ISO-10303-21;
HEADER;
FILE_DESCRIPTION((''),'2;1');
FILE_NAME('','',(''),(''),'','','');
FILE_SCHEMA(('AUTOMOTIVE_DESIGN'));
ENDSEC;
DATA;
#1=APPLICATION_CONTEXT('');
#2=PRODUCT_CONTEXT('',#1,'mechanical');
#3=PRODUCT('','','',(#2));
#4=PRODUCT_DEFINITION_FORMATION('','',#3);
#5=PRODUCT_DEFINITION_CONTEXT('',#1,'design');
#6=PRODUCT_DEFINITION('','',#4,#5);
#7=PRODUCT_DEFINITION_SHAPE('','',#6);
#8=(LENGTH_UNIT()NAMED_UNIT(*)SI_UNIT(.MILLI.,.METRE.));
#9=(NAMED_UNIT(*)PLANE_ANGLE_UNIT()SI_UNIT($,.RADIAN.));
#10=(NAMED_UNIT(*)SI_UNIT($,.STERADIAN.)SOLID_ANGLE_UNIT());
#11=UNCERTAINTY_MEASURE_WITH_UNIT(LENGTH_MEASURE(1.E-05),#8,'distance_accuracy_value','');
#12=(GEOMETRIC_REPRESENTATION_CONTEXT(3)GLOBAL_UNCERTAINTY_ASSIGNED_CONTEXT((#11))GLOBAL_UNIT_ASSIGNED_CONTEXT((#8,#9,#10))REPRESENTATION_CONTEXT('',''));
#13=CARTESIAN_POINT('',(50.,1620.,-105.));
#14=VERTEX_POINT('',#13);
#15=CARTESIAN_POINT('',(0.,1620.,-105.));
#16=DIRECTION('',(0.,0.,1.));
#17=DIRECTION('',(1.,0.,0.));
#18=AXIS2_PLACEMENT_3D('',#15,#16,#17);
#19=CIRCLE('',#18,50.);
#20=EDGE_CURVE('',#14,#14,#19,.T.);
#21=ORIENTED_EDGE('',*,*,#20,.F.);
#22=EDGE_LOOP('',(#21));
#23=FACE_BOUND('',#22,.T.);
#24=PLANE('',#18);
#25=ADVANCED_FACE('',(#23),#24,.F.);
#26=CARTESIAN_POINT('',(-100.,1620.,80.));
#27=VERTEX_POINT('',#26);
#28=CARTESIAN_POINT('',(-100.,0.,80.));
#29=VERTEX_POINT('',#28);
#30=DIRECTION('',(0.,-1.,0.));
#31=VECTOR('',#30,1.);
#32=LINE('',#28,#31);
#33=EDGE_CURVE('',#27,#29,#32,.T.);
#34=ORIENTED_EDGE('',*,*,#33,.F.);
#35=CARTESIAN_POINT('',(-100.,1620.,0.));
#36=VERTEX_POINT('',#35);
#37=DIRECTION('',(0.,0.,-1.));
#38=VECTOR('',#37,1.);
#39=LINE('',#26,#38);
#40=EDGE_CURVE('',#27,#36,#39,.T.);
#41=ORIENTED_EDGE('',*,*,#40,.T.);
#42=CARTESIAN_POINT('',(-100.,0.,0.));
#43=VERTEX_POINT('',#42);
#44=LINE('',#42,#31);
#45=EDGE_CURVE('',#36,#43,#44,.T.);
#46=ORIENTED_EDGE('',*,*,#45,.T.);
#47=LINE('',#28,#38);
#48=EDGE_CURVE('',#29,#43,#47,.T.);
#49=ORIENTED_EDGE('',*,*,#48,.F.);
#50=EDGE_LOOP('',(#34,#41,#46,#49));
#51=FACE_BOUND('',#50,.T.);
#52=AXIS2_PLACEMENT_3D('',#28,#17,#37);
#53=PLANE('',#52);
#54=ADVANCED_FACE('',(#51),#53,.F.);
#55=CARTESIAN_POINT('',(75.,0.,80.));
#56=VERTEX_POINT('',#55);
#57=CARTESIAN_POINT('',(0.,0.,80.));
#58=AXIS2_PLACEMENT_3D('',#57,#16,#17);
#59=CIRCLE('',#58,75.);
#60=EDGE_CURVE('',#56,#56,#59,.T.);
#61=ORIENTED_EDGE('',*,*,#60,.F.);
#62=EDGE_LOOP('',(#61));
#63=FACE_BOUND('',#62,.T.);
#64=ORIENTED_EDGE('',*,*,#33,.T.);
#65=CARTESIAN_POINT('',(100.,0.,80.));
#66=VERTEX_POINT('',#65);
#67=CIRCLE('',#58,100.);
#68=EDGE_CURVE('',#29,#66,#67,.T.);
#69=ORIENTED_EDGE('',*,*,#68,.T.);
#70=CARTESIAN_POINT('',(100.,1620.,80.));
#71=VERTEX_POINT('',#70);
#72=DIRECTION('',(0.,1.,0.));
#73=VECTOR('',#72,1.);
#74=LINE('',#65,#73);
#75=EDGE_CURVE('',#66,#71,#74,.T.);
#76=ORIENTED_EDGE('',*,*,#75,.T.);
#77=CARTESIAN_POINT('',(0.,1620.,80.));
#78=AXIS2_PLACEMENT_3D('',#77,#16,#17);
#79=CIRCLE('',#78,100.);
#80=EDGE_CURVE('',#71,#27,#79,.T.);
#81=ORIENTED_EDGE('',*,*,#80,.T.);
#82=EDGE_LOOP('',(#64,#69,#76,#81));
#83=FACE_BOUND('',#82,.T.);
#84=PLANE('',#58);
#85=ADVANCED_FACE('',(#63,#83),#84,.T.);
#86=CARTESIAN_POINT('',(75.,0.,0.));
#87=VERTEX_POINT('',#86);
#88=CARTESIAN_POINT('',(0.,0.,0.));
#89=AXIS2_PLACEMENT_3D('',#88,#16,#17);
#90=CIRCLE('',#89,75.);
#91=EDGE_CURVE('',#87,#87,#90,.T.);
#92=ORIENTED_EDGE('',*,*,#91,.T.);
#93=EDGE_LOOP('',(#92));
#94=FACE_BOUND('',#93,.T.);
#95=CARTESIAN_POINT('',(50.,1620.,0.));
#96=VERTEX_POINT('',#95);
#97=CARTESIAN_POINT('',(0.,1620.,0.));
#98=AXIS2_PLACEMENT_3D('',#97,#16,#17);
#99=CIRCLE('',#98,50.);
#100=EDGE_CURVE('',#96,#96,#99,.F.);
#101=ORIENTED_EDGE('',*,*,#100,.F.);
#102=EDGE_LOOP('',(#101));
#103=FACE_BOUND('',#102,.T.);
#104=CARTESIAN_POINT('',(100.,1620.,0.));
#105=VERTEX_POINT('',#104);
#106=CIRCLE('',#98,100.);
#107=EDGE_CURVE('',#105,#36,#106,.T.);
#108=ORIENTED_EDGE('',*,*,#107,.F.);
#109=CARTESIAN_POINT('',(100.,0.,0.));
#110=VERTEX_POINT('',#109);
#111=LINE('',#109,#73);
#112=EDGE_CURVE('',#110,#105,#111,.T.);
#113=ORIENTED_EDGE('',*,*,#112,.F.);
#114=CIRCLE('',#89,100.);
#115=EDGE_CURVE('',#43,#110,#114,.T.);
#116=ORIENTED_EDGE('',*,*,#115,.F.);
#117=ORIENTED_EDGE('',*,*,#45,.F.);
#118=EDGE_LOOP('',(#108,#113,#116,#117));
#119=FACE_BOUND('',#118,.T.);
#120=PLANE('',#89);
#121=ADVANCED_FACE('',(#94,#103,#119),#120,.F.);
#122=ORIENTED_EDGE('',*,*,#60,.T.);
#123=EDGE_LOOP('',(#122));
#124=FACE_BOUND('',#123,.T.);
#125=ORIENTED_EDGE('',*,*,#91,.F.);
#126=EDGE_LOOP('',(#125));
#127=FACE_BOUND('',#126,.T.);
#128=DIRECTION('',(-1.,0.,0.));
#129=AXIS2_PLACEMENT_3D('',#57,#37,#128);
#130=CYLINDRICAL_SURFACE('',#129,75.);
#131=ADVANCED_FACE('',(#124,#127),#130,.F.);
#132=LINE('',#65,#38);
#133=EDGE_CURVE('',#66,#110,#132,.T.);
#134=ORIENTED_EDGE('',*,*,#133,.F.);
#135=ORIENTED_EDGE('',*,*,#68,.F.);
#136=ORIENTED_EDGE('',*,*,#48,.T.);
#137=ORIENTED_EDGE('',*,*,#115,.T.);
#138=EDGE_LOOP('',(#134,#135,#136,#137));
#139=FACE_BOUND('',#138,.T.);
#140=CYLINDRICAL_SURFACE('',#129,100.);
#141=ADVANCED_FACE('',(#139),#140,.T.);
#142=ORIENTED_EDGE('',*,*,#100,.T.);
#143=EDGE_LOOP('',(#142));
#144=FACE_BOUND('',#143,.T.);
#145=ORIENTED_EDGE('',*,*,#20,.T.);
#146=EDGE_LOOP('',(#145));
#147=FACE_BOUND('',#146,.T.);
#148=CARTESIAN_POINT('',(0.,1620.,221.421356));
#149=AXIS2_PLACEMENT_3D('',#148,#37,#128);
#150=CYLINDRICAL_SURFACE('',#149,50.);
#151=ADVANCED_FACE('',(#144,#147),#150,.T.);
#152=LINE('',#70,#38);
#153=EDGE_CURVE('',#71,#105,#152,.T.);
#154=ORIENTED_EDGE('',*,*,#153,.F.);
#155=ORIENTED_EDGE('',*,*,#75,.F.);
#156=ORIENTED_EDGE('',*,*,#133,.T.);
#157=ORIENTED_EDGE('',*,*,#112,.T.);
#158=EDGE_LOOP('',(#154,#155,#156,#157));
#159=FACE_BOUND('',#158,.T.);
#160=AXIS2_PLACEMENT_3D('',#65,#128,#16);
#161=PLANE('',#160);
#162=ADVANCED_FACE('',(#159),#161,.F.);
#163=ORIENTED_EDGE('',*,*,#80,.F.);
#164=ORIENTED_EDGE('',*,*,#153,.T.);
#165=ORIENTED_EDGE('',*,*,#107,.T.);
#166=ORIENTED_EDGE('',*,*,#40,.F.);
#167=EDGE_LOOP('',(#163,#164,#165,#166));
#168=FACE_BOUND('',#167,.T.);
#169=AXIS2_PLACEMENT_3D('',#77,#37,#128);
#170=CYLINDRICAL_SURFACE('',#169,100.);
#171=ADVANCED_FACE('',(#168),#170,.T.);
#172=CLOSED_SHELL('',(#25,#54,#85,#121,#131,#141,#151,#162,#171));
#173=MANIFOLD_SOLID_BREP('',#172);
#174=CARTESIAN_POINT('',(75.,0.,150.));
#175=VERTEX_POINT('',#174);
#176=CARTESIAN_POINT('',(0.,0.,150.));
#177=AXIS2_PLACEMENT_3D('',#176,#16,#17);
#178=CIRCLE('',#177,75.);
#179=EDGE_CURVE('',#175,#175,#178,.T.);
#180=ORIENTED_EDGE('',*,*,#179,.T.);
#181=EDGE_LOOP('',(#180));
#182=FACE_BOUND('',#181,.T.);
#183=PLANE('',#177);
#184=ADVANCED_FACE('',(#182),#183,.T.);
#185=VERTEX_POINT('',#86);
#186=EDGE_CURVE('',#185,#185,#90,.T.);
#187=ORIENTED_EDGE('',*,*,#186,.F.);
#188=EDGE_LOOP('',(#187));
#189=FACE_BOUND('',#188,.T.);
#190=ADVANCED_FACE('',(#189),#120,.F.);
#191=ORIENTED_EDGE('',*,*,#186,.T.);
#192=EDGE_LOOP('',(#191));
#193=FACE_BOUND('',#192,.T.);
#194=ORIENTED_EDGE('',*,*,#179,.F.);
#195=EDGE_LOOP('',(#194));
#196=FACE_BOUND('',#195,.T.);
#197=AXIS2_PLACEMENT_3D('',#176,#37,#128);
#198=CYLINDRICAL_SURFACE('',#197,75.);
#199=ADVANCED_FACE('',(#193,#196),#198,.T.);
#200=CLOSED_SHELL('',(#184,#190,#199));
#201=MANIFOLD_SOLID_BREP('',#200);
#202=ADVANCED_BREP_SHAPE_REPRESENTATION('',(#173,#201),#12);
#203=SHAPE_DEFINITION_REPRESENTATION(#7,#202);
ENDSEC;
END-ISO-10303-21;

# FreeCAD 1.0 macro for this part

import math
import FreeCAD as App
import Part
import Sketcher
from FreeCAD import Vector

doc = App.newDocument("Part")
body = doc.addObject("PartDesign::Body", "Body")

# Sketch on XY plane
sketch1 = body.newObject("Sketcher::SketchObject", "Sketch")
sketch1.AttachmentSupport = (doc.getObject("XY_Plane"), [""])
sketch1.MapMode = "FlatFace"
sketch1.addGeometry([
    Part.LineSegment(Vector(-100, 1620, 0), Vector(-100, 0, 0)),  # 0
    Part.ArcOfCircle(Part.Circle(Vector(0, 0, 0), Vector(0, 0, 1), 100), math.radians(180), math.radians(360)),  # 1
    Part.LineSegment(Vector(100, 0, 0), Vector(100, 1620, 0)),  # 2
    Part.ArcOfCircle(Part.Circle(Vector(0, 1620, 0), Vector(0, 0, 1), 100), math.radians(0), math.radians(180)),  # 3
    Part.Circle(Vector(0, 0, 0), Vector(0, 0, 1), 75),  # 4
    Part.Circle(Vector(0, 1620, 0), Vector(0, 0, 1), 50),  # 5
], False)
sketch1.addConstraint([
    Sketcher.Constraint("Tangent", 0, 2, 1, 1),
    Sketcher.Constraint("Tangent", 1, 2, 2, 1),
    Sketcher.Constraint("Tangent", 2, 2, 3, 1),
    Sketcher.Constraint("Tangent", 3, 2, 0, 1),
    Sketcher.Constraint("Vertical", 0),
    Sketcher.Constraint("Vertical", 2),
    Sketcher.Constraint("Coincident", 1, 3, -1, 1),
    Sketcher.Constraint("Coincident", 4, 3, -1, 1),
    Sketcher.Constraint("Coincident", 5, 3, 3, 3),
    Sketcher.Constraint("Diameter", 4, 150.0),
    Sketcher.Constraint("Diameter", 5, 100.0),
    Sketcher.Constraint("Radius", 1, 100.0),
    Sketcher.Constraint("DistanceY", 0, 2, 0, 1, 1620.0),
])
pad1 = body.newObject("PartDesign::Pad", "Pad")
pad1.Profile = sketch1
pad1.Length = 80

# Sketch on XY plane
sketch2 = body.newObject("Sketcher::SketchObject", "Sketch001")
sketch2.AttachmentSupport = (doc.getObject("XY_Plane"), [""])
sketch2.MapMode = "FlatFace"
sketch2.AttachmentOffset = App.Placement(Vector(0, 0, -105), App.Rotation())
sketch2.addGeometry(Part.Circle(Vector(0, 1620, 0), Vector(0, 0, 1), 50), False)
sketch2.addConstraint([
    Sketcher.Constraint("PointOnObject", 0, 3, -2),
    Sketcher.Constraint("Diameter", 0, 100.0),
    Sketcher.Constraint("DistanceY", -1, 1, 0, 3, 1620.0),
])
pad2 = body.newObject("PartDesign::Pad", "Pad001")
pad2.Profile = sketch2
pad2.Length = 185
body2 = doc.addObject("PartDesign::Body", "Body001")

# Sketch on XY plane
sketch3 = body2.newObject("Sketcher::SketchObject", "Sketch002")
sketch3.AttachmentSupport = (doc.getObject("XY_Plane001"), [""])
sketch3.MapMode = "FlatFace"
sketch3.addGeometry(Part.Circle(Vector(0, 0, 0), Vector(0, 0, 1), 75), False)
sketch3.addConstraint([
    Sketcher.Constraint("Coincident", 0, 3, -1, 1),
    Sketcher.Constraint("Diameter", 0, 150.0),
])
pad3 = body2.newObject("PartDesign::Pad", "Pad002")
pad3.Profile = sketch3
pad3.Length = 150

doc.recompute()
